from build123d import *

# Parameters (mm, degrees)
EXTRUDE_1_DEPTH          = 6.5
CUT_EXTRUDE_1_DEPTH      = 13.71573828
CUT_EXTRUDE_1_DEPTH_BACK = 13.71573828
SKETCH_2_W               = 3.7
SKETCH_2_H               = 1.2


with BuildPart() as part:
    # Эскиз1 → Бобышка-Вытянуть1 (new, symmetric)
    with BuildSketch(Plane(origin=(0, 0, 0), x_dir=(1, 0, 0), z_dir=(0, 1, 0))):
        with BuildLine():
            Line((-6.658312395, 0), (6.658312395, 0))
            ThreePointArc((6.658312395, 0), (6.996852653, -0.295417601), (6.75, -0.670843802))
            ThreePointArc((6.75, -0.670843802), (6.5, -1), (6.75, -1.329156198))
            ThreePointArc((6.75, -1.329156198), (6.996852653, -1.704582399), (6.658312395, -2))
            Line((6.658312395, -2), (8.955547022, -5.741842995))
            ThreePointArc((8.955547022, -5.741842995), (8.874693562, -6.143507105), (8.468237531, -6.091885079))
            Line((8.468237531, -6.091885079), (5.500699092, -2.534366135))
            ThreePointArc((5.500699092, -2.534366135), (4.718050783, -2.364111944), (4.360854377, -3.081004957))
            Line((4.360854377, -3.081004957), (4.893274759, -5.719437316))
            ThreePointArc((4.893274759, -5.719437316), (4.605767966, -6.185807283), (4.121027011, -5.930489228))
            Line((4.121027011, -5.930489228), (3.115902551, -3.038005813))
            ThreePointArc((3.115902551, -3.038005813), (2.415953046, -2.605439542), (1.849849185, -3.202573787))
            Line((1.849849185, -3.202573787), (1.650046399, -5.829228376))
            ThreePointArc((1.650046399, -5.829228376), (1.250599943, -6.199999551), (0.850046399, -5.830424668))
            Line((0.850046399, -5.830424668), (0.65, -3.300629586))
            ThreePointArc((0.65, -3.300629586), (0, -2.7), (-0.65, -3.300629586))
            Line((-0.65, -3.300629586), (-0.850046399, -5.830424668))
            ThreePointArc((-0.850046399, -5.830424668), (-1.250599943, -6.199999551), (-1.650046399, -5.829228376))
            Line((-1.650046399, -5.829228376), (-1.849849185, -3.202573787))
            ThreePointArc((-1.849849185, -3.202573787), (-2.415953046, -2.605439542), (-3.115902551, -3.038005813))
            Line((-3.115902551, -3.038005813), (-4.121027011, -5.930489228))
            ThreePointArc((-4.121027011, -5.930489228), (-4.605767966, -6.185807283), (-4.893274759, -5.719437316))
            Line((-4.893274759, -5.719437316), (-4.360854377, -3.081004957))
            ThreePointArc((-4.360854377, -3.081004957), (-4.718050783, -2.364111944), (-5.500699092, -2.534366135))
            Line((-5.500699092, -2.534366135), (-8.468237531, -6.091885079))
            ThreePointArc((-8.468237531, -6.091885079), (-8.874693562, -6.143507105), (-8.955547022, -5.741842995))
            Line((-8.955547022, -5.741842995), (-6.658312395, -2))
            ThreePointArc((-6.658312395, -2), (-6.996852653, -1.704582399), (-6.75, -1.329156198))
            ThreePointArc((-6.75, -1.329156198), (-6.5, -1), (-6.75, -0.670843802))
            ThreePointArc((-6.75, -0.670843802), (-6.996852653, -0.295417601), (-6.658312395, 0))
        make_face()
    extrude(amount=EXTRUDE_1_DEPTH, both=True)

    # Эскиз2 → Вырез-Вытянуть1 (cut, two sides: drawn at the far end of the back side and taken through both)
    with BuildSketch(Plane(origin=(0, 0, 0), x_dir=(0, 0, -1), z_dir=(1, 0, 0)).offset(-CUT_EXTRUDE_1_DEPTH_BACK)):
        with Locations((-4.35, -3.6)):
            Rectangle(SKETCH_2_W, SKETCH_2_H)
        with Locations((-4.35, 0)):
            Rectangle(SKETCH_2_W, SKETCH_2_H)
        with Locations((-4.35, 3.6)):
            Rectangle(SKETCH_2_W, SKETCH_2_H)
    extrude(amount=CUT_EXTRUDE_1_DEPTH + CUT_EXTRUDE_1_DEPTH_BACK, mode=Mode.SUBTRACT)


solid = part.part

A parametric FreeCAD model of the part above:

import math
import FreeCAD as App
import Part
import Sketcher
from FreeCAD import Vector

doc = App.newDocument("Part")
body = doc.addObject("PartDesign::Body", "Body")

# Sketch on XZ plane
sketch1 = doc.addObject("Sketcher::SketchObject", "Sketch")
body.addObject(sketch1)
sketch1.AttachmentSupport = (doc.XZ_Plane, [""])
sketch1.MapMode = "FlatFace"
sketch1.addGeometry(Part.LineSegment(Vector(6.658312, 0, 0), Vector(-6.658312, 0, 0)), False)
sketch1.addGeometry(Part.ArcOfCircle(Part.Circle(Vector(-6.658312, 0.341688, 0), Vector(0, 0, 1), 0.341688), math.radians(105.565363), math.radians(270)), False)
sketch1.addGeometry(Part.ArcOfCircle(Part.Circle(Vector(-6.841688, 1, 0), Vector(0, 0, 1), 0.341688), math.radians(-74.434636), math.radians(74.434636)), False)
sketch1.addGeometry(Part.ArcOfCircle(Part.Circle(Vector(-6.658312, 1.658312, 0), Vector(0, 0, 1), 0.341688), math.radians(90), math.radians(254.434637)), False)
sketch1.addGeometry(Part.LineSegment(Vector(-6.658312, 2, 0), Vector(-8.955547, 5.741843, 0)), False)
sketch1.addGeometry(Part.ArcOfCircle(Part.Circle(Vector(-8.699214, 5.899214, 0), Vector(0, 0, 1), 0.300786), math.radians(39.833498), math.radians(211.547067)), False)
sketch1.addGeometry(Part.LineSegment(Vector(-8.468238, 6.091885, 0), Vector(-5.500699, 2.534366, 0)), False)
sketch1.addGeometry(Part.ArcOfCircle(Part.Circle(Vector(-5, 2.952029, 0), Vector(0, 0, 1), 0.652029), math.radians(-140.166502), math.radians(11.408745)), False)
sketch1.addGeometry(Part.LineSegment(Vector(-4.360854, 3.081005, 0), Vector(-4.893275, 5.719437, 0)), False)
sketch1.addGeometry(Part.ArcOfCircle(Part.Circle(Vector(-4.5, 5.798798, 0), Vector(0, 0, 1), 0.401202), math.radians(19.1621), math.radians(191.408745)), False)
sketch1.addGeometry(Part.LineSegment(Vector(-4.121027, 5.930489, 0), Vector(-3.115903, 3.038006, 0)), False)
sketch1.addGeometry(Part.ArcOfCircle(Part.Circle(Vector(-2.5, 3.252029, 0), Vector(0, 0, 1), 0.652029), math.radians(-160.8379), math.radians(-4.349964)), False)
sketch1.addGeometry(Part.LineSegment(Vector(-1.849849, 3.202574, 0), Vector(-1.650046, 5.829228, 0)), False)
sketch1.addGeometry(Part.ArcOfCircle(Part.Circle(Vector(-1.25, 5.798798, 0), Vector(0, 0, 1), 0.401202), math.radians(4.52132), math.radians(175.650036)), False)
sketch1.addGeometry(Part.LineSegment(Vector(-0.850046, 5.830425, 0), Vector(-0.65, 3.30063, 0)), False)
sketch1.addGeometry(Part.ArcOfCircle(Part.Circle(Vector(0, 3.352029, 0), Vector(0, 0, 1), 0.652029), math.radians(-175.47868), math.radians(-4.52132)), False)
sketch1.addGeometry(Part.LineSegment(Vector(0.65, 3.30063, 0), Vector(0.850046, 5.830425, 0)), False)
sketch1.addGeometry(Part.ArcOfCircle(Part.Circle(Vector(1.25, 5.798798, 0), Vector(0, 0, 1), 0.401202), math.radians(4.349964), math.radians(175.47868)), False)
sketch1.addGeometry(Part.LineSegment(Vector(1.650046, 5.829228, 0), Vector(1.849849, 3.202574, 0)), False)
sketch1.addGeometry(Part.ArcOfCircle(Part.Circle(Vector(2.5, 3.252029, 0), Vector(0, 0, 1), 0.652029), math.radians(-175.650036), math.radians(-19.1621)), False)
sketch1.addGeometry(Part.LineSegment(Vector(3.115903, 3.038006, 0), Vector(4.121027, 5.930489, 0)), False)
sketch1.addGeometry(Part.ArcOfCircle(Part.Circle(Vector(4.5, 5.798798, 0), Vector(0, 0, 1), 0.401202), math.radians(-11.408745), math.radians(160.8379)), False)
sketch1.addGeometry(Part.LineSegment(Vector(4.893275, 5.719437, 0), Vector(4.360854, 3.081005, 0)), False)
sketch1.addGeometry(Part.ArcOfCircle(Part.Circle(Vector(5, 2.952029, 0), Vector(0, 0, 1), 0.652029), math.radians(168.591255), math.radians(320.166502)), False)
sketch1.addGeometry(Part.LineSegment(Vector(5.500699, 2.534366, 0), Vector(8.468238, 6.091885, 0)), False)
sketch1.addGeometry(Part.ArcOfCircle(Part.Circle(Vector(8.699214, 5.899214, 0), Vector(0, 0, 1), 0.300786), math.radians(-31.547067), math.radians(140.166502)), False)
sketch1.addGeometry(Part.LineSegment(Vector(8.955547, 5.741843, 0), Vector(6.658312, 2, 0)), False)
sketch1.addGeometry(Part.ArcOfCircle(Part.Circle(Vector(6.658312, 1.658312, 0), Vector(0, 0, 1), 0.341688), math.radians(-74.434637), math.radians(90)), False)
sketch1.addGeometry(Part.ArcOfCircle(Part.Circle(Vector(6.841688, 1, 0), Vector(0, 0, 1), 0.341688), math.radians(105.565364), math.radians(254.434636)), False)
sketch1.addGeometry(Part.ArcOfCircle(Part.Circle(Vector(6.658312, 0.341688, 0), Vector(0, 0, 1), 0.341688), math.radians(-90), math.radians(74.434637)), False)
sketch1.addConstraint(Sketcher.Constraint("Tangent", 0, 2, 1, 2))
sketch1.addConstraint(Sketcher.Constraint("Tangent", 1, 1, 2, 1))
sketch1.addConstraint(Sketcher.Constraint("Tangent", 2, 2, 3, 2))
sketch1.addConstraint(Sketcher.Constraint("Coincident", 3, 1, 4, 1))
sketch1.addConstraint(Sketcher.Constraint("Tangent", 4, 2, 5, 2))
sketch1.addConstraint(Sketcher.Constraint("Tangent", 5, 1, 6, 1))
sketch1.addConstraint(Sketcher.Constraint("Tangent", 6, 2, 7, 1))
sketch1.addConstraint(Sketcher.Constraint("Tangent", 7, 2, 8, 1))
sketch1.addConstraint(Sketcher.Constraint("Tangent", 8, 2, 9, 2))
sketch1.addConstraint(Sketcher.Constraint("Tangent", 9, 1, 10, 1))
sketch1.addConstraint(Sketcher.Constraint("Tangent", 10, 2, 11, 1))
sketch1.addConstraint(Sketcher.Constraint("Tangent", 11, 2, 12, 1))
sketch1.addConstraint(Sketcher.Constraint("Tangent", 12, 2, 13, 2))
sketch1.addConstraint(Sketcher.Constraint("Tangent", 13, 1, 14, 1))
sketch1.addConstraint(Sketcher.Constraint("Tangent", 14, 2, 15, 1))
sketch1.addConstraint(Sketcher.Constraint("Tangent", 15, 2, 16, 1))
sketch1.addConstraint(Sketcher.Constraint("Tangent", 16, 2, 17, 2))
sketch1.addConstraint(Sketcher.Constraint("Tangent", 17, 1, 18, 1))
sketch1.addConstraint(Sketcher.Constraint("Tangent", 18, 2, 19, 1))
sketch1.addConstraint(Sketcher.Constraint("Tangent", 19, 2, 20, 1))
sketch1.addConstraint(Sketcher.Constraint("Tangent", 20, 2, 21, 2))
sketch1.addConstraint(Sketcher.Constraint("Tangent", 21, 1, 22, 1))
sketch1.addConstraint(Sketcher.Constraint("Tangent", 22, 2, 23, 1))
sketch1.addConstraint(Sketcher.Constraint("Tangent", 23, 2, 24, 1))
sketch1.addConstraint(Sketcher.Constraint("Tangent", 24, 2, 25, 2))
sketch1.addConstraint(Sketcher.Constraint("Tangent", 25, 1, 26, 1))
sketch1.addConstraint(Sketcher.Constraint("Coincident", 26, 2, 27, 2))
sketch1.addConstraint(Sketcher.Constraint("Tangent", 27, 1, 28, 1))
sketch1.addConstraint(Sketcher.Constraint("Tangent", 28, 2, 29, 2))
sketch1.addConstraint(Sketcher.Constraint("Tangent", 29, 1, 0, 1))
sketch1.addConstraint(Sketcher.Constraint("Horizontal", 0))
sketch1.addConstraint(Sketcher.Constraint("Equal", 1, 2))
sketch1.addConstraint(Sketcher.Constraint("Equal", 2, 3))
sketch1.addConstraint(Sketcher.Constraint("Equal", 7, 11))
sketch1.addConstraint(Sketcher.Constraint("Equal", 9, 13))
sketch1.addConstraint(Sketcher.Constraint("Equal", 11, 15))
sketch1.addConstraint(Sketcher.Constraint("Equal", 13, 17))
sketch1.addConstraint(Sketcher.Constraint("Equal", 15, 19))
sketch1.addConstraint(Sketcher.Constraint("Equal", 17, 21))
sketch1.addConstraint(Sketcher.Constraint("Equal", 19, 23))
sketch1.addConstraint(Sketcher.Constraint("Equal", 5, 25))
sketch1.addConstraint(Sketcher.Constraint("Equal", 3, 27))
sketch1.addConstraint(Sketcher.Constraint("Equal", 27, 28))
sketch1.addConstraint(Sketcher.Constraint("Equal", 28, 29))
sketch1.addConstraint(Sketcher.Constraint("Symmetric", 0, 2, 29, 1, -1, 1))
sketch1.addConstraint(Sketcher.Constraint("Symmetric", 13, 3, 17, 3, -2))
sketch1.addConstraint(Sketcher.Constraint("Symmetric", 11, 3, 19, 3, -2))
sketch1.addConstraint(Sketcher.Constraint("Symmetric", 9, 3, 21, 3, -2))
sketch1.addConstraint(Sketcher.Constraint("Symmetric", 7, 3, 23, 3, -2))
sketch1.addConstraint(Sketcher.Constraint("Symmetric", 5, 3, 25, 3, -2))
sketch1.addConstraint(Sketcher.Constraint("Symmetric", 3, 3, 27, 3, -2))
sketch1.addConstraint(Sketcher.Constraint("PointOnObject", 15, 3, -2))
sketch1.addConstraint(Sketcher.Constraint("Horizontal", 9, 3, 13, 3))
sketch1.addConstraint(Sketcher.Constraint("Horizontal", 4, 2, 25, 1))
sketch1.addConstraint(Sketcher.Constraint("Vertical", 1, 3, 3, 3))
sketch1.addConstraint(Sketcher.Constraint("Vertical", 0, 2, 3, 1))
sketch1.addConstraint(Sketcher.Constraint("DistanceY", -1, 1, 2, 3, 1.0))
sketch1.addConstraint(Sketcher.Constraint("DistanceX", 7, 3, -1, 1, 5.0))
sketch1.addConstraint(Sketcher.Constraint("DistanceX", 9, 3, 11, 3, 2.0))
sketch1.addConstraint(Sketcher.Constraint("DistanceX", 11, 3, 19, 3, 5.0))
sketch1.addConstraint(Sketcher.Constraint("DistanceY", 7, 3, 11, 3, 0.3))
sketch1.addConstraint(Sketcher.Constraint("DistanceY", 11, 3, 15, 3, 0.1))
sketch1.addConstraint(Sketcher.Constraint("DistanceX", 13, 3, 17, 3, 2.5))
sketch1.addConstraint(Sketcher.Constraint("DistanceX", 12, 2, 13, 1, 0.8))
sketch1.addConstraint(Sketcher.Constraint("DistanceX", 14, 2, 15, 2, 1.3))
sketch1.addConstraint(Sketcher.Constraint("DistanceX", 1, 1, -1, 1, 6.75))
sketch1.addConstraint(Sketcher.Constraint("Radius", 1, 0.341688))
sketch1.addConstraint(Sketcher.Constraint("Radius", 5, 0.300786))
sketch1.addConstraint(Sketcher.Constraint("DistanceY", 10, 2, 7, 2, 0.042999))
sketch1.addConstraint(Sketcher.Constraint("DistanceX", 6, 2, -1, 1, 5.500699))
sketch1.addConstraint(Sketcher.Constraint("DistanceX", 5, 3, 3, 3, 2.040902))
sketch1.addConstraint(Sketcher.Constraint("DistanceY", 3, 3, 5, 3, 4.240902))
pad1 = doc.addObject("PartDesign::Pad", "Pad")
body.addObject(pad1)
pad1.Profile = sketch1
pad1.Length = 13
pad1.Midplane = True

# Sketch on YZ plane
sketch2 = doc.addObject("Sketcher::SketchObject", "Sketch001")
body.addObject(sketch2)
sketch2.AttachmentSupport = (doc.YZ_Plane, [""])
sketch2.MapMode = "FlatFace"
sketch2.addGeometry(Part.LineSegment(Vector(-3, 6.2, 0), Vector(-4.2, 6.2, 0)), False)
sketch2.addGeometry(Part.LineSegment(Vector(-4.2, 6.2, 0), Vector(-4.2, 2.5, 0)), False)
sketch2.addGeometry(Part.LineSegment(Vector(-4.2, 2.5, 0), Vector(-3, 2.5, 0)), False)
sketch2.addGeometry(Part.LineSegment(Vector(-3, 2.5, 0), Vector(-3, 6.2, 0)), False)
sketch2.addGeometry(Part.LineSegment(Vector(0.6, 6.2, 0), Vector(-0.6, 6.2, 0)), False)
sketch2.addGeometry(Part.LineSegment(Vector(-0.6, 6.2, 0), Vector(-0.6, 2.5, 0)), False)
sketch2.addGeometry(Part.LineSegment(Vector(-0.6, 2.5, 0), Vector(0.6, 2.5, 0)), False)
sketch2.addGeometry(Part.LineSegment(Vector(0.6, 2.5, 0), Vector(0.6, 6.2, 0)), False)
sketch2.addGeometry(Part.LineSegment(Vector(4.2, 6.2, 0), Vector(3, 6.2, 0)), False)
sketch2.addGeometry(Part.LineSegment(Vector(3, 6.2, 0), Vector(3, 2.5, 0)), False)
sketch2.addGeometry(Part.LineSegment(Vector(3, 2.5, 0), Vector(4.2, 2.5, 0)), False)
sketch2.addGeometry(Part.LineSegment(Vector(4.2, 2.5, 0), Vector(4.2, 6.2, 0)), False)
sketch2.addConstraint(Sketcher.Constraint("Coincident", 0, 2, 1, 1))
sketch2.addConstraint(Sketcher.Constraint("Coincident", 1, 2, 2, 1))
sketch2.addConstraint(Sketcher.Constraint("Coincident", 2, 2, 3, 1))
sketch2.addConstraint(Sketcher.Constraint("Coincident", 3, 2, 0, 1))
sketch2.addConstraint(Sketcher.Constraint("Coincident", 4, 2, 5, 1))
sketch2.addConstraint(Sketcher.Constraint("Coincident", 5, 2, 6, 1))
sketch2.addConstraint(Sketcher.Constraint("Coincident", 6, 2, 7, 1))
sketch2.addConstraint(Sketcher.Constraint("Coincident", 7, 2, 4, 1))
sketch2.addConstraint(Sketcher.Constraint("Coincident", 8, 2, 9, 1))
sketch2.addConstraint(Sketcher.Constraint("Coincident", 9, 2, 10, 1))
sketch2.addConstraint(Sketcher.Constraint("Coincident", 10, 2, 11, 1))
sketch2.addConstraint(Sketcher.Constraint("Coincident", 11, 2, 8, 1))
sketch2.addConstraint(Sketcher.Constraint("Horizontal", 0))
sketch2.addConstraint(Sketcher.Constraint("Vertical", 1))
sketch2.addConstraint(Sketcher.Constraint("Horizontal", 2))
sketch2.addConstraint(Sketcher.Constraint("Vertical", 3))
sketch2.addConstraint(Sketcher.Constraint("Horizontal", 4))
sketch2.addConstraint(Sketcher.Constraint("Vertical", 5))
sketch2.addConstraint(Sketcher.Constraint("Horizontal", 6))
sketch2.addConstraint(Sketcher.Constraint("Vertical", 7))
sketch2.addConstraint(Sketcher.Constraint("Horizontal", 8))
sketch2.addConstraint(Sketcher.Constraint("Vertical", 9))
sketch2.addConstraint(Sketcher.Constraint("Horizontal", 10))
sketch2.addConstraint(Sketcher.Constraint("Vertical", 11))
sketch2.addConstraint(Sketcher.Constraint("Symmetric", 3, 2, 8, 2, -2))
sketch2.addConstraint(Sketcher.Constraint("Symmetric", 1, 2, 10, 2, -2))
sketch2.addConstraint(Sketcher.Constraint("Horizontal", 3, 2, 4, 2))
sketch2.addConstraint(Sketcher.Constraint("Horizontal", 2, 2, 5, 2))
sketch2.addConstraint(Sketcher.Constraint("Equal", 2, 4))
sketch2.addConstraint(Sketcher.Constraint("DistanceX", 0, 2, 0, 1, 1.2))
sketch2.addConstraint(Sketcher.Constraint("DistanceY", 1, 2, 1, 1, 3.7))
sketch2.addConstraint(Sketcher.Constraint("DistanceX", 2, 2, -1, 1, 3.0))
sketch2.addConstraint(Sketcher.Constraint("DistanceY", -1, 1, 0, 2, 6.2))
sketch2.addConstraint(Sketcher.Constraint("DistanceX", 4, 2, -1, 1, 0.6))
pocket1 = doc.addObject("PartDesign::Pocket", "Pocket")
body.addObject(pocket1)
pocket1.Profile = sketch2
pocket1.Type = "ThroughAll"
pocket1.Midplane = True

doc.recompute()
